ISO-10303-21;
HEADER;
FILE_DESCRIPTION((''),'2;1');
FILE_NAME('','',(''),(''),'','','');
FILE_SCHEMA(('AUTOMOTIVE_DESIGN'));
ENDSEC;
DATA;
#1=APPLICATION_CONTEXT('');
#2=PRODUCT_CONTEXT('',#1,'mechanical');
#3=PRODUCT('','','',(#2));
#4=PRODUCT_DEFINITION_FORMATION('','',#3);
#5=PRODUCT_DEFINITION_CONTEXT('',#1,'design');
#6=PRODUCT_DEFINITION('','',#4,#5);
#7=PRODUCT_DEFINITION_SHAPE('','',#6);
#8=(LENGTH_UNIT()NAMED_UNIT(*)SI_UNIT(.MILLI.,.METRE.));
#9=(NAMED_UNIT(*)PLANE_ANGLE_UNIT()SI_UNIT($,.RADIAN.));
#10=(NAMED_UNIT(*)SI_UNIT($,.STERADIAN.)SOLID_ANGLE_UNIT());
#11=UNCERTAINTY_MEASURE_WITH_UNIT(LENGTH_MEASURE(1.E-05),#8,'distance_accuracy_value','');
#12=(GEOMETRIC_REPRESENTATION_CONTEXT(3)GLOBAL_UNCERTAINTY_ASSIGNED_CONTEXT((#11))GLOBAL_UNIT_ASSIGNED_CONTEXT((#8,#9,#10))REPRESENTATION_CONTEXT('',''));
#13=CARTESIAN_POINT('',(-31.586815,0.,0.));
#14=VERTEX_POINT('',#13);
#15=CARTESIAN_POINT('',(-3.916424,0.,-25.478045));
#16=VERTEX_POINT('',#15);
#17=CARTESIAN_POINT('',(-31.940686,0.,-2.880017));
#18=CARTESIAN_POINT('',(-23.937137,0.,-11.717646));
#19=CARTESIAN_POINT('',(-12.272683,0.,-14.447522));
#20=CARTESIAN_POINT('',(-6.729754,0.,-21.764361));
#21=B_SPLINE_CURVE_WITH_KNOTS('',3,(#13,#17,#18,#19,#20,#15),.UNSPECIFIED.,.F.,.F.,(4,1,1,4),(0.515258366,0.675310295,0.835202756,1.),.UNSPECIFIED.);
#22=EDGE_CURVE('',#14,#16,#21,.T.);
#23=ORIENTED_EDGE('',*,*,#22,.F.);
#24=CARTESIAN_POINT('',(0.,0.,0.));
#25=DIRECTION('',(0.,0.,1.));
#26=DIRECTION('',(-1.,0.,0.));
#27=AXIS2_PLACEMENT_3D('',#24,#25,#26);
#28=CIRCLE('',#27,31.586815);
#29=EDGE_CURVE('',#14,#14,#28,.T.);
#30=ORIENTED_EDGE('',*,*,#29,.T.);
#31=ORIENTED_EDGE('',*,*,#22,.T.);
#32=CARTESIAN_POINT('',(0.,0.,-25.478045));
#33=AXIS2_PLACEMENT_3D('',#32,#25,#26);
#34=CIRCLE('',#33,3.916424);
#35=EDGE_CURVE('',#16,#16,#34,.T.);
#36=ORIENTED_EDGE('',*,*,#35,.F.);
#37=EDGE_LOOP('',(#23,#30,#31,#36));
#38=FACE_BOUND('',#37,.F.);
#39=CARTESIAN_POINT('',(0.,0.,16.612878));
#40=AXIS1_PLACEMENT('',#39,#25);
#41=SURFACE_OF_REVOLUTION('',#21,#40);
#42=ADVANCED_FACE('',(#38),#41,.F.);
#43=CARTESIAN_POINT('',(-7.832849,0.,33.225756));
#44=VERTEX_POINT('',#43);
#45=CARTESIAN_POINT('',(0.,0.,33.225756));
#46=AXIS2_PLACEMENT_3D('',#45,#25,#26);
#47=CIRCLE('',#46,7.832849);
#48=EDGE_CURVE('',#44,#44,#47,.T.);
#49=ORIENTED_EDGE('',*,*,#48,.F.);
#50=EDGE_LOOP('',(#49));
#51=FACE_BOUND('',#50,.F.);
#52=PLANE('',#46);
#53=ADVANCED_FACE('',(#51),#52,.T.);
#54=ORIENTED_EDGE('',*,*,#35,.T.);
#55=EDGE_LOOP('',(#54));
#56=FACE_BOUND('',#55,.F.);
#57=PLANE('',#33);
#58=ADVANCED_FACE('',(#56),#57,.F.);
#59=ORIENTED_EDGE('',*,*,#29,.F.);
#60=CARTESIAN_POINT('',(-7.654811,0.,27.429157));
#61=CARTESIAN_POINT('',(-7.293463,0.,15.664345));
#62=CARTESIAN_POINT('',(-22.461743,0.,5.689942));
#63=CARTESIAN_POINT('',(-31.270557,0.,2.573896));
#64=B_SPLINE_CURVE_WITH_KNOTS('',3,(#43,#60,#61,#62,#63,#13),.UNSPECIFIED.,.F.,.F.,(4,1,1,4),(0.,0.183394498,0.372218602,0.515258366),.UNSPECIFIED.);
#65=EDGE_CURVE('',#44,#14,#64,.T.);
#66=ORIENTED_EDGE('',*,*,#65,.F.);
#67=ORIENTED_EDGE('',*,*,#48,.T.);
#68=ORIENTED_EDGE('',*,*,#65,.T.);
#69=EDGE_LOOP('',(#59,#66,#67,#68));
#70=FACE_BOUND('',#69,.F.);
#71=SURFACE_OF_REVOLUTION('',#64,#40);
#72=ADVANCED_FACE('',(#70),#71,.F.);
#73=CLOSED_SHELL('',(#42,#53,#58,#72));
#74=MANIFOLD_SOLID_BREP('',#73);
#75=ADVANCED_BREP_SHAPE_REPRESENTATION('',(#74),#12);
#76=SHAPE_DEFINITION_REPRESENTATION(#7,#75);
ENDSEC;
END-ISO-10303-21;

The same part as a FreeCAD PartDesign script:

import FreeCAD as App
import Part
import Sketcher
from FreeCAD import Vector

doc = App.newDocument("Part")
params = doc.addObject("Spreadsheet::Sheet", "Params")
for row, (alias, value) in enumerate([
    ("revolution_angle", "360 deg"),
], start=1):
    params.set(f"A{row}", alias)
    params.set(f"B{row}", "=" + value)
    params.setAlias(f"B{row}", alias)

body = doc.addObject("PartDesign::Body", "Body")

# Sketch on XZ plane
sketch1 = body.newObject("Sketcher::SketchObject", "Sketch")
sketch1.AttachmentSupport = (doc.getObject("XZ_Plane"), [""])
sketch1.MapMode = "FlatFace"
sketch1.addGeometry([
    Part.LineSegment(Vector(0, 33.225756, 0), Vector(-7.832849, 33.225756, 0)),  # 0
    Part.BSplineCurve([Vector(-7.832849, 33.225756, 0), Vector(-7.654811, 27.429157, 0), Vector(-7.293463, 15.664345, 0), Vector(-22.461743, 5.689942, 0), Vector(-31.270557, 2.573896, 0), Vector(-31.586815, 0, 0)], [4, 1, 1, 4], [0, 0.183394498, 0.372218602, 0.515258366], False, 3, [1, 1, 1, 1, 1, 1], False),  # 1
    Part.BSplineCurve([Vector(-31.586815, 0, 0), Vector(-31.940686, -2.880017, 0), Vector(-23.937137, -11.717646, 0), Vector(-12.272683, -14.447522, 0), Vector(-6.729754, -21.764361, 0), Vector(-3.916424, -25.478045, 0)], [4, 1, 1, 4], [0.515258366, 0.675310295, 0.835202756, 1], False, 3, [1, 1, 1, 1, 1, 1], False),  # 2
    Part.LineSegment(Vector(-3.916424, -25.478045, 0), Vector(0, -25.478045, 0)),  # 3
    Part.LineSegment(Vector(0, -25.478045, 0), Vector(0, 33.225756, 0)),  # 4
], False)
sketch1.addConstraint([
    Sketcher.Constraint("Block", 1),
    Sketcher.Constraint("Block", 2),
    Sketcher.Constraint("Coincident", 0, 2, 1, 1),
    Sketcher.Constraint("Coincident", 2, 2, 3, 1),
    Sketcher.Constraint("Coincident", 3, 2, 4, 1),
    Sketcher.Constraint("Coincident", 4, 2, 0, 1),
    Sketcher.Constraint("Horizontal", 0),
    Sketcher.Constraint("Horizontal", 3),
    Sketcher.Constraint("Vertical", 4),
    Sketcher.Constraint("PointOnObject", 3, 2, -2),
])
revolution = body.newObject("PartDesign::Revolution", "Revolution")
revolution.Profile = sketch1
revolution.ReferenceAxis = (sketch1, ["V_Axis"])
revolution.setExpression("Angle", "Params.revolution_angle")

doc.recompute()
